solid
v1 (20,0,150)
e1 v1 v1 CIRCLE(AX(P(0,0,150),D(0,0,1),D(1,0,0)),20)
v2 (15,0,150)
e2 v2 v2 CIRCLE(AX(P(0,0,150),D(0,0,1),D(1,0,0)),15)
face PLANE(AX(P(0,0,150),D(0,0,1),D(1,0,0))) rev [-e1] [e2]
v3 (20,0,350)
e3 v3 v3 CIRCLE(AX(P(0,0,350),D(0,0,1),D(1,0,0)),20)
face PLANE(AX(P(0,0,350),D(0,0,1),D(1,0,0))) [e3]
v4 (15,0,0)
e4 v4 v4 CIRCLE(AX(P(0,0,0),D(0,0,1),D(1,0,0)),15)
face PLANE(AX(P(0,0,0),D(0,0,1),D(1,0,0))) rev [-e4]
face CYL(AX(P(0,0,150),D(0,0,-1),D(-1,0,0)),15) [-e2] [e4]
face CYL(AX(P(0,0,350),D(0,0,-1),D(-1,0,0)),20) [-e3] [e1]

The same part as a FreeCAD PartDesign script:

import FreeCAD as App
import Part
import Sketcher
Q = App.Units.Quantity

doc = App.newDocument("Part")
params = doc.addObject("Spreadsheet::Sheet", "Params")
for row, (alias, value) in enumerate([
    ("sketch1_diameter", "30 mm"),
    ("pad1_length", "150 mm"),
    ("sketch2_diameter", "40 mm"),
    ("pad2_length", "200 mm"),
], start=1):
    params.set(f"A{row}", alias)
    params.set(f"B{row}", "=" + value)
    params.setAlias(f"B{row}", alias)

body = doc.addObject("PartDesign::Body", "Body")

sketch1 = body.newObject("Sketcher::SketchObject", "Sketch")
sketch1.AttachmentSupport = (doc.getObject("XY_Plane"), [""])
sketch1.MapMode = "FlatFace"
sketch1.addGeometry(Part.Circle(App.Vector(0, 0, 0), App.Vector(0, 0, 1), 15), False)
sketch1.addConstraint([
    Sketcher.Constraint("Coincident", 0, 3, -1, 1),
    Sketcher.Constraint("Diameter", 0, Q("30 mm")),
])
sketch1.setExpression("Constraints[1]", "Params.sketch1_diameter")
pad1 = body.newObject("PartDesign::Pad", "Pad")
pad1.Profile = sketch1
pad1.setExpression("Length", "Params.pad1_length")

sketch2 = body.newObject("Sketcher::SketchObject", "Sketch001")
sketch2.AttachmentSupport = (doc.getObject("XY_Plane"), [""])
sketch2.MapMode = "FlatFace"
sketch2.AttachmentOffset = App.Placement(App.Vector(0, 0, 150), App.Rotation())
sketch2.addGeometry(Part.Circle(App.Vector(0, 0, 0), App.Vector(0, 0, 1), 20), False)
sketch2.addConstraint([
    Sketcher.Constraint("Coincident", 0, 3, -1, 1),
    Sketcher.Constraint("Diameter", 0, Q("40 mm")),
])
sketch2.setExpression("Constraints[1]", "Params.sketch2_diameter")
pad2 = body.newObject("PartDesign::Pad", "Pad001")
pad2.Profile = sketch2
pad2.setExpression("Length", "Params.pad2_length")

doc.recompute()
